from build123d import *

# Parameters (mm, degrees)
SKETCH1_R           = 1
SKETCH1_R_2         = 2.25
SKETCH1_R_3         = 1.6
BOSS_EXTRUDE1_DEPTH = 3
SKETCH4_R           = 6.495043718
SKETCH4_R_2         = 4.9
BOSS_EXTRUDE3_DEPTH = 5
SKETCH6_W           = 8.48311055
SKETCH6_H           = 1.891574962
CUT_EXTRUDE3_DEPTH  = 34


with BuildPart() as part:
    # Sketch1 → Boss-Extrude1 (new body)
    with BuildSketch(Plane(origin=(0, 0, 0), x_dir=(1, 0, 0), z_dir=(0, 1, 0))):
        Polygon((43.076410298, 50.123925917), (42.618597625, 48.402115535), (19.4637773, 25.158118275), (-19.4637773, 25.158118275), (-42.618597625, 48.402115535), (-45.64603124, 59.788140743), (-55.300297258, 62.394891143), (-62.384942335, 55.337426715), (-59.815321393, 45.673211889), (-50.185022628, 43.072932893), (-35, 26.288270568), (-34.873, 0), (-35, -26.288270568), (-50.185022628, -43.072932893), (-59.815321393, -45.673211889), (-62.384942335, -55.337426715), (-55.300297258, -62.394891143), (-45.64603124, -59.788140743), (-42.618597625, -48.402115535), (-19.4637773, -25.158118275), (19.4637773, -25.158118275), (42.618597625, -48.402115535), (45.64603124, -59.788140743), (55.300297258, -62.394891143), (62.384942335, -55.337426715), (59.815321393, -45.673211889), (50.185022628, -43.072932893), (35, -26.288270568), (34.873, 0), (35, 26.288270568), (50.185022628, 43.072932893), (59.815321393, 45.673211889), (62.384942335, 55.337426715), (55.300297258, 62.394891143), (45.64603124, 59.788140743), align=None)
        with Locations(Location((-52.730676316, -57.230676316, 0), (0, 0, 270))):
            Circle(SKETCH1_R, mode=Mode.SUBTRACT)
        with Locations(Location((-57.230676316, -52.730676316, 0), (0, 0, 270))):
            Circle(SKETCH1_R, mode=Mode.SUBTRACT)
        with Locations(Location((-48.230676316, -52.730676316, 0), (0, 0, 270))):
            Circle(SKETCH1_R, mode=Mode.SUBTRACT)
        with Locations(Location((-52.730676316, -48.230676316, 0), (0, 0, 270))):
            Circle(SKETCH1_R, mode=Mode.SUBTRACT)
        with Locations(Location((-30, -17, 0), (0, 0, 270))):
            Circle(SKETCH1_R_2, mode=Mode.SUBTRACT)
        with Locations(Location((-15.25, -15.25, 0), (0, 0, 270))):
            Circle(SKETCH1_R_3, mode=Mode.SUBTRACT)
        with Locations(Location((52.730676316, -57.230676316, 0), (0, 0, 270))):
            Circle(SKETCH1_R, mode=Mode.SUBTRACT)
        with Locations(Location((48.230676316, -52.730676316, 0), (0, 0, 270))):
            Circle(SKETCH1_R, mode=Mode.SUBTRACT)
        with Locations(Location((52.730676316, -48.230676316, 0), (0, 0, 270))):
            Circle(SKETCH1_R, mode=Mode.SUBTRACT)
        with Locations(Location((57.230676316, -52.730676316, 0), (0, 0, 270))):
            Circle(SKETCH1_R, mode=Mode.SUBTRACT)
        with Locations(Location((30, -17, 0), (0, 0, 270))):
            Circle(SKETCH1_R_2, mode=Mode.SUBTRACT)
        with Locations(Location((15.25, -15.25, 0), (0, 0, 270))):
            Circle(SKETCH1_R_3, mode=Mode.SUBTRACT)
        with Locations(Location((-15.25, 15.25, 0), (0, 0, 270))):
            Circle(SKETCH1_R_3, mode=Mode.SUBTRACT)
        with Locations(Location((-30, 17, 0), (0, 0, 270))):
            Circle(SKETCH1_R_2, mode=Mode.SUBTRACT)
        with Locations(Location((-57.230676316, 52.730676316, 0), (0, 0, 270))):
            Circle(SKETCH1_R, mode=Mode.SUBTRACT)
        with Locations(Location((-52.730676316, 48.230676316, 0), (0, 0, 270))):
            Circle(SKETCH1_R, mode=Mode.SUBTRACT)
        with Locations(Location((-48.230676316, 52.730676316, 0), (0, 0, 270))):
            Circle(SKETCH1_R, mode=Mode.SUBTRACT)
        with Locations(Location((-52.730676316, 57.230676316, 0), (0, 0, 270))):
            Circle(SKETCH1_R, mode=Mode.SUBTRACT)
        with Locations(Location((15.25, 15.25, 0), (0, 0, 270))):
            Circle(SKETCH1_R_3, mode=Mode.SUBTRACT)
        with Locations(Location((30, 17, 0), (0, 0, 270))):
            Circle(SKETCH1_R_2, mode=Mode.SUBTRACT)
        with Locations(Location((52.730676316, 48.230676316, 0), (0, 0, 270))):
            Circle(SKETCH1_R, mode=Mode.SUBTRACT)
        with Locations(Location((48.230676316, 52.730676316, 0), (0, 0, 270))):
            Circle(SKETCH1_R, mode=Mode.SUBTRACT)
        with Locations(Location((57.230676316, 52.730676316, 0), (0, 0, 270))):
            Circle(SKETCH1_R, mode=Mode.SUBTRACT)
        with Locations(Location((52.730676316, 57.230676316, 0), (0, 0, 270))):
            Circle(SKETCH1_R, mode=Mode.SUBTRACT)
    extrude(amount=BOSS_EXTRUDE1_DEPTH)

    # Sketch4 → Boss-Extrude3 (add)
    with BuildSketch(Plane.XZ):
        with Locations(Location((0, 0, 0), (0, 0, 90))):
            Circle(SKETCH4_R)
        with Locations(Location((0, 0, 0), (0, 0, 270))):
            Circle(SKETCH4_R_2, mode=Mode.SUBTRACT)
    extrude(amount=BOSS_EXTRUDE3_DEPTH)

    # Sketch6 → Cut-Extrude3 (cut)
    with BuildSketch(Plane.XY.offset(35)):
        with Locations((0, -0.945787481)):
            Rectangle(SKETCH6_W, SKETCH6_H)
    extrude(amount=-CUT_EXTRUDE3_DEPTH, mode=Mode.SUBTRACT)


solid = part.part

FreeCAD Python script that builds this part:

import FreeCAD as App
import Part
import Sketcher

V = App.Vector


def add_polygon(sketch, points):
    """Adds a closed chain of lines whose ends are joined by coincident constraints."""
    first, n = sketch.GeometryCount, len(points)
    for a, b in zip(points, points[1:] + points[:1]):
        sketch.addGeometry(Part.LineSegment(App.Vector(*a, 0), App.Vector(*b, 0)), False)
    for i in range(n):
        sketch.addConstraint(Sketcher.Constraint("Coincident", first + i, 2, first + (i + 1) % n, 1))

doc = App.newDocument("Part")
body = doc.addObject("PartDesign::Body", "Body")

# Sketch on XZ plane
sketch1 = body.newObject("Sketcher::SketchObject", "Sketch")
sketch1.AttachmentSupport = (doc.getObject("XZ_Plane"), [""])
sketch1.MapMode = "FlatFace"
add_polygon(sketch1, [(43.1, -50.1), (42.6, -48.4), (19.5, -25.2), (-19.5, -25.2), (-42.6, -48.4), (-45.6, -59.8), (-55.3, -62.4), (-62.4, -55.3), (-59.8, -45.7), (-50.2, -43.1), (-35, -26.3), (-34.9, 0), (-35, 26.3), (-50.2, 43.1), (-59.8, 45.7), (-62.4, 55.3), (-55.3, 62.4), (-45.6, 59.8), (-42.6, 48.4), (-19.5, 25.2), (19.5, 25.2), (42.6, 48.4), (45.6, 59.8), (55.3, 62.4), (62.4, 55.3), (59.8, 45.7), (50.2, 43.1), (35, 26.3), (34.9, 0), (35, -26.3), (50.2, -43.1), (59.8, -45.7), (62.4, -55.3), (55.3, -62.4), (45.6, -59.8)])  # lines 0-34
sketch1.addGeometry(Part.Circle(V(-52.7, 57.2, 0), V(0, 0, 1), 1), False)  # 35
sketch1.addGeometry(Part.Circle(V(-57.2, 52.7, 0), V(0, 0, 1), 1), False)  # 36
sketch1.addGeometry(Part.Circle(V(-48.2, 52.7, 0), V(0, 0, 1), 1), False)  # 37
sketch1.addGeometry(Part.Circle(V(-52.7, 48.2, 0), V(0, 0, 1), 1), False)  # 38
sketch1.addGeometry(Part.Circle(V(-30, 17, 0), V(0, 0, 1), 2.2), False)  # 39
sketch1.addGeometry(Part.Circle(V(-15.2, 15.2, 0), V(0, 0, 1), 1.6), False)  # 40
sketch1.addGeometry(Part.Circle(V(48.2, 52.7, 0), V(0, 0, 1), 1), False)  # 41
sketch1.addGeometry(Part.Circle(V(52.7, 57.2, 0), V(0, 0, 1), 1), False)  # 42
sketch1.addGeometry(Part.Circle(V(57.2, 52.7, 0), V(0, 0, 1), 1), False)  # 43
sketch1.addGeometry(Part.Circle(V(52.7, 48.2, 0), V(0, 0, 1), 1), False)  # 44
sketch1.addGeometry(Part.Circle(V(15.2, 15.2, 0), V(0, 0, 1), 1.6), False)  # 45
sketch1.addGeometry(Part.Circle(V(30, 17, 0), V(0, 0, 1), 2.2), False)  # 46
sketch1.addGeometry(Part.Circle(V(-30, -17, 0), V(0, 0, 1), 2.2), False)  # 47
sketch1.addGeometry(Part.Circle(V(-15.2, -15.2, 0), V(0, 0, 1), 1.6), False)  # 48
sketch1.addGeometry(Part.Circle(V(-52.7, -48.2, 0), V(0, 0, 1), 1), False)  # 49
sketch1.addGeometry(Part.Circle(V(-57.2, -52.7, 0), V(0, 0, 1), 1), False)  # 50
sketch1.addGeometry(Part.Circle(V(-52.7, -57.2, 0), V(0, 0, 1), 1), False)  # 51
sketch1.addGeometry(Part.Circle(V(-48.2, -52.7, 0), V(0, 0, 1), 1), False)  # 52
sketch1.addGeometry(Part.Circle(V(15.2, -15.2, 0), V(0, 0, 1), 1.6), False)  # 53
sketch1.addGeometry(Part.Circle(V(30, -17, 0), V(0, 0, 1), 2.2), False)  # 54
sketch1.addGeometry(Part.Circle(V(52.7, -48.2, 0), V(0, 0, 1), 1), False)  # 55
sketch1.addGeometry(Part.Circle(V(48.2, -52.7, 0), V(0, 0, 1), 1), False)  # 56
sketch1.addGeometry(Part.Circle(V(57.2, -52.7, 0), V(0, 0, 1), 1), False)  # 57
sketch1.addGeometry(Part.Circle(V(52.7, -57.2, 0), V(0, 0, 1), 1), False)  # 58
sketch1.addConstraint(Sketcher.Constraint("Horizontal", 2))
sketch1.addConstraint(Sketcher.Constraint("Horizontal", 19))
sketch1.addConstraint(Sketcher.Constraint("Equal", 35, 36))
sketch1.addConstraint(Sketcher.Constraint("Equal", 36, 37))
sketch1.addConstraint(Sketcher.Constraint("Equal", 37, 38))
sketch1.addConstraint(Sketcher.Constraint("Equal", 38, 41))
sketch1.addConstraint(Sketcher.Constraint("Equal", 41, 42))
sketch1.addConstraint(Sketcher.Constraint("Equal", 42, 43))
sketch1.addConstraint(Sketcher.Constraint("Equal", 43, 44))
sketch1.addConstraint(Sketcher.Constraint("Equal", 40, 45))
sketch1.addConstraint(Sketcher.Constraint("Equal", 39, 46))
sketch1.addConstraint(Sketcher.Constraint("Equal", 46, 47))
sketch1.addConstraint(Sketcher.Constraint("Equal", 45, 48))
sketch1.addConstraint(Sketcher.Constraint("Equal", 44, 49))
sketch1.addConstraint(Sketcher.Constraint("Equal", 49, 50))
sketch1.addConstraint(Sketcher.Constraint("Equal", 50, 51))
sketch1.addConstraint(Sketcher.Constraint("Equal", 51, 52))
sketch1.addConstraint(Sketcher.Constraint("Equal", 48, 53))
sketch1.addConstraint(Sketcher.Constraint("Equal", 47, 54))
sketch1.addConstraint(Sketcher.Constraint("Equal", 52, 55))
sketch1.addConstraint(Sketcher.Constraint("Equal", 55, 56))
sketch1.addConstraint(Sketcher.Constraint("Equal", 56, 57))
sketch1.addConstraint(Sketcher.Constraint("Equal", 57, 58))
sketch1.addConstraint(Sketcher.Constraint("Symmetric", 46, 3, 47, 3, -1, 1))
sketch1.addConstraint(Sketcher.Constraint("Symmetric", 45, 3, 48, 3, -1, 1))
sketch1.addConstraint(Sketcher.Constraint("Symmetric", 44, 3, 49, 3, -1, 1))
sketch1.addConstraint(Sketcher.Constraint("Symmetric", 43, 3, 50, 3, -1, 1))
sketch1.addConstraint(Sketcher.Constraint("Symmetric", 42, 3, 51, 3, -1, 1))
sketch1.addConstraint(Sketcher.Constraint("Symmetric", 41, 3, 52, 3, -1, 1))
sketch1.addConstraint(Sketcher.Constraint("Symmetric", 40, 3, 53, 3, -1, 1))
sketch1.addConstraint(Sketcher.Constraint("Symmetric", 39, 3, 54, 3, -1, 1))
sketch1.addConstraint(Sketcher.Constraint("Symmetric", 38, 3, 55, 3, -1, 1))
sketch1.addConstraint(Sketcher.Constraint("Symmetric", 37, 3, 56, 3, -1, 1))
sketch1.addConstraint(Sketcher.Constraint("Symmetric", 36, 3, 57, 3, -1, 1))
sketch1.addConstraint(Sketcher.Constraint("Symmetric", 35, 3, 58, 3, -1, 1))
sketch1.addConstraint(Sketcher.Constraint("Symmetric", 0, 2, 17, 2, -1, 1))
sketch1.addConstraint(Sketcher.Constraint("Symmetric", 1, 2, 18, 2, -1, 1))
sketch1.addConstraint(Sketcher.Constraint("Symmetric", 3, 2, 20, 2, -1, 1))
sketch1.addConstraint(Sketcher.Constraint("Symmetric", 4, 2, 21, 2, -1, 1))
sketch1.addConstraint(Sketcher.Constraint("Symmetric", 5, 2, 22, 2, -1, 1))
sketch1.addConstraint(Sketcher.Constraint("Symmetric", 6, 2, 23, 2, -1, 1))
sketch1.addConstraint(Sketcher.Constraint("Symmetric", 7, 2, 24, 2, -1, 1))
sketch1.addConstraint(Sketcher.Constraint("Symmetric", 8, 2, 25, 2, -1, 1))
sketch1.addConstraint(Sketcher.Constraint("Symmetric", 9, 2, 26, 2, -1, 1))
sketch1.addConstraint(Sketcher.Constraint("Symmetric", 10, 2, 27, 2, -1, 1))
sketch1.addConstraint(Sketcher.Constraint("Symmetric", 11, 2, 28, 2, -1, 1))
sketch1.addConstraint(Sketcher.Constraint("Symmetric", 12, 2, 29, 2, -1, 1))
sketch1.addConstraint(Sketcher.Constraint("Symmetric", 13, 2, 30, 2, -1, 1))
sketch1.addConstraint(Sketcher.Constraint("Symmetric", 14, 2, 31, 2, -1, 1))
sketch1.addConstraint(Sketcher.Constraint("Symmetric", 15, 2, 32, 2, -1, 1))
sketch1.addConstraint(Sketcher.Constraint("Symmetric", 16, 2, 33, 2, -1, 1))
sketch1.addConstraint(Sketcher.Constraint("Symmetric", 37, 3, 41, 3, -2))
sketch1.addConstraint(Sketcher.Constraint("Symmetric", 35, 3, 42, 3, -2))
sketch1.addConstraint(Sketcher.Constraint("Symmetric", 36, 3, 43, 3, -2))
sketch1.addConstraint(Sketcher.Constraint("Symmetric", 38, 3, 44, 3, -2))
sketch1.addConstraint(Sketcher.Constraint("Symmetric", 40, 3, 45, 3, -2))
sketch1.addConstraint(Sketcher.Constraint("Symmetric", 39, 3, 46, 3, -2))
sketch1.addConstraint(Sketcher.Constraint("Symmetric", 0, 2, 3, 2, -2))
sketch1.addConstraint(Sketcher.Constraint("Symmetric", 16, 2, 21, 2, -2))
sketch1.addConstraint(Sketcher.Constraint("Symmetric", 15, 2, 22, 2, -2))
sketch1.addConstraint(Sketcher.Constraint("Symmetric", 14, 2, 23, 2, -2))
sketch1.addConstraint(Sketcher.Constraint("Symmetric", 13, 2, 24, 2, -2))
sketch1.addConstraint(Sketcher.Constraint("Symmetric", 12, 2, 25, 2, -2))
sketch1.addConstraint(Sketcher.Constraint("Symmetric", 11, 2, 26, 2, -2))
sketch1.addConstraint(Sketcher.Constraint("PointOnObject", 10, 2, -1))
sketch1.addConstraint(Sketcher.Constraint("Perpendicular", 3, 6))
sketch1.addConstraint(Sketcher.Constraint("Parallel", 4, 7))
sketch1.addConstraint(Sketcher.Constraint("Parallel", 5, 8))
sketch1.addConstraint(Sketcher.Constraint("Parallel", 0, 14))
sketch1.addConstraint(Sketcher.Constraint("Perpendicular", 1, 15))
sketch1.addConstraint(Sketcher.Constraint("Perpendicular", 6, 20))
sketch1.addConstraint(Sketcher.Constraint("Horizontal", 36, 3, 37, 3))
sketch1.addConstraint(Sketcher.Constraint("Vertical", 35, 3, 38, 3))
sketch1.addConstraint(Sketcher.Constraint("Equal", 5, 6))
sketch1.addConstraint(Sketcher.Constraint("Equal", 6, 7))
sketch1.addConstraint(Sketcher.Constraint("Equal", 33, 34))
sketch1.addConstraint(Sketcher.Constraint("Diameter", 35, 2.0))
sketch1.addConstraint(Sketcher.Constraint("Diameter", 39, 4.5))
sketch1.addConstraint(Sketcher.Constraint("Diameter", 40, 3.2))
sketch1.addConstraint(Sketcher.Constraint("Distance", 5, 10.0))
sketch1.addConstraint(Sketcher.Constraint("DistanceX", 39, 3, -1, 1, 30.0))
sketch1.addConstraint(Sketcher.Constraint("DistanceY", -1, 1, 39, 3, 17.0))
sketch1.addConstraint(Sketcher.Constraint("DistanceX", 9, 2, -1, 1, 35.0))
sketch1.addConstraint(Sketcher.Constraint("DistanceX", 36, 3, 37, 3, 9.0))
sketch1.addConstraint(Sketcher.Constraint("DistanceY", 38, 3, 35, 3, 9.0))
sketch1.addConstraint(Sketcher.Constraint("DistanceX", 36, 3, 35, 3, 4.5))
sketch1.addConstraint(Sketcher.Constraint("DistanceY", 36, 3, 35, 3, 4.5))
sketch1.addConstraint(Sketcher.Constraint("DistanceX", 40, 3, 45, 3, 30.5))
sketch1.addConstraint(Sketcher.Constraint("DistanceY", 48, 3, 40, 3, 30.5))
sketch1.addConstraint(Sketcher.Constraint("DistanceX", 10, 2, -1, 1, 34.873))
sketch1.addConstraint(Sketcher.Constraint("DistanceX", 1, 2, 56, 3, 28.766899))
sketch1.addConstraint(Sketcher.Constraint("DistanceX", 7, 2, 8, 2, 9.630299))
sketch1.addConstraint(Sketcher.Constraint("Distance", 1, 32.808979))
sketch1.addConstraint(Sketcher.Constraint("Distance", 9, 22.634262))
sketch1.addConstraint(Sketcher.Constraint("DistanceX", 2, 2, 2, 1, 38.927555))
sketch1.addConstraint(Sketcher.Constraint("DistanceY", 1, 2, -1, 1, 25.158118))
sketch1.addConstraint(Sketcher.Constraint("DistanceX", 4, 2, -1, 1, 45.646031))
sketch1.addConstraint(Sketcher.Constraint("DistanceY", 4, 2, -1, 1, 59.788141))
sketch1.addConstraint(Sketcher.Constraint("DistanceY", 5, 2, -1, 1, 62.394891))
sketch1.addConstraint(Sketcher.Constraint("DistanceX", 7, 2, -1, 1, 59.815321))
sketch1.addConstraint(Sketcher.Constraint("DistanceY", 56, 3, 0, 2, 4.328561))
pad1 = body.newObject("PartDesign::Pad", "Pad")
pad1.Profile = sketch1
pad1.Length = 3
pad1.Reversed = True

# Sketch on XZ plane
sketch2 = body.newObject("Sketcher::SketchObject", "Sketch001")
sketch2.AttachmentSupport = (doc.getObject("XZ_Plane"), [""])
sketch2.MapMode = "FlatFace"
sketch2.addGeometry(Part.Circle(V(0, 0, 0), V(0, 0, 1), 6.5), False)
sketch2.addGeometry(Part.Circle(V(0, 0, 0), V(0, 0, 1), 4.9), False)
sketch2.addConstraint(Sketcher.Constraint("Coincident", 0, 3, -1, 1))
sketch2.addConstraint(Sketcher.Constraint("Coincident", 1, 3, -1, 1))
sketch2.addConstraint(Sketcher.Constraint("Diameter", 1, 9.8))
sketch2.addConstraint(Sketcher.Constraint("Diameter", 0, 12.990087))
pad2 = body.newObject("PartDesign::Pad", "Pad001")
pad2.Profile = sketch2
pad2.Length = 5

# Sketch on XY plane
sketch3 = body.newObject("Sketcher::SketchObject", "Sketch002")
sketch3.AttachmentSupport = (doc.getObject("XY_Plane"), [""])
sketch3.MapMode = "FlatFace"
sketch3.AttachmentOffset = App.Placement(V(0, 0, 35), App.Rotation())
add_polygon(sketch3, [(-4.2, 0), (-4.2, -1.9), (4.2, -1.9), (4.2, 0)])  # lines 0-3
sketch3.addConstraint(Sketcher.Constraint("Vertical", 0))
sketch3.addConstraint(Sketcher.Constraint("Horizontal", 1))
sketch3.addConstraint(Sketcher.Constraint("Vertical", 2))
sketch3.addConstraint(Sketcher.Constraint("Horizontal", 3))
sketch3.addConstraint(Sketcher.Constraint("Symmetric", 2, 2, 3, 2, -1, 1))
sketch3.addConstraint(Sketcher.Constraint("DistanceX", 1, 1, 1, 2, 8.483111))
sketch3.addConstraint(Sketcher.Constraint("DistanceY", 0, 2, 0, 1, 1.891575))
pocket1 = body.newObject("PartDesign::Pocket", "Pocket")
pocket1.Profile = sketch3
pocket1.Length = 34

doc.recompute()
